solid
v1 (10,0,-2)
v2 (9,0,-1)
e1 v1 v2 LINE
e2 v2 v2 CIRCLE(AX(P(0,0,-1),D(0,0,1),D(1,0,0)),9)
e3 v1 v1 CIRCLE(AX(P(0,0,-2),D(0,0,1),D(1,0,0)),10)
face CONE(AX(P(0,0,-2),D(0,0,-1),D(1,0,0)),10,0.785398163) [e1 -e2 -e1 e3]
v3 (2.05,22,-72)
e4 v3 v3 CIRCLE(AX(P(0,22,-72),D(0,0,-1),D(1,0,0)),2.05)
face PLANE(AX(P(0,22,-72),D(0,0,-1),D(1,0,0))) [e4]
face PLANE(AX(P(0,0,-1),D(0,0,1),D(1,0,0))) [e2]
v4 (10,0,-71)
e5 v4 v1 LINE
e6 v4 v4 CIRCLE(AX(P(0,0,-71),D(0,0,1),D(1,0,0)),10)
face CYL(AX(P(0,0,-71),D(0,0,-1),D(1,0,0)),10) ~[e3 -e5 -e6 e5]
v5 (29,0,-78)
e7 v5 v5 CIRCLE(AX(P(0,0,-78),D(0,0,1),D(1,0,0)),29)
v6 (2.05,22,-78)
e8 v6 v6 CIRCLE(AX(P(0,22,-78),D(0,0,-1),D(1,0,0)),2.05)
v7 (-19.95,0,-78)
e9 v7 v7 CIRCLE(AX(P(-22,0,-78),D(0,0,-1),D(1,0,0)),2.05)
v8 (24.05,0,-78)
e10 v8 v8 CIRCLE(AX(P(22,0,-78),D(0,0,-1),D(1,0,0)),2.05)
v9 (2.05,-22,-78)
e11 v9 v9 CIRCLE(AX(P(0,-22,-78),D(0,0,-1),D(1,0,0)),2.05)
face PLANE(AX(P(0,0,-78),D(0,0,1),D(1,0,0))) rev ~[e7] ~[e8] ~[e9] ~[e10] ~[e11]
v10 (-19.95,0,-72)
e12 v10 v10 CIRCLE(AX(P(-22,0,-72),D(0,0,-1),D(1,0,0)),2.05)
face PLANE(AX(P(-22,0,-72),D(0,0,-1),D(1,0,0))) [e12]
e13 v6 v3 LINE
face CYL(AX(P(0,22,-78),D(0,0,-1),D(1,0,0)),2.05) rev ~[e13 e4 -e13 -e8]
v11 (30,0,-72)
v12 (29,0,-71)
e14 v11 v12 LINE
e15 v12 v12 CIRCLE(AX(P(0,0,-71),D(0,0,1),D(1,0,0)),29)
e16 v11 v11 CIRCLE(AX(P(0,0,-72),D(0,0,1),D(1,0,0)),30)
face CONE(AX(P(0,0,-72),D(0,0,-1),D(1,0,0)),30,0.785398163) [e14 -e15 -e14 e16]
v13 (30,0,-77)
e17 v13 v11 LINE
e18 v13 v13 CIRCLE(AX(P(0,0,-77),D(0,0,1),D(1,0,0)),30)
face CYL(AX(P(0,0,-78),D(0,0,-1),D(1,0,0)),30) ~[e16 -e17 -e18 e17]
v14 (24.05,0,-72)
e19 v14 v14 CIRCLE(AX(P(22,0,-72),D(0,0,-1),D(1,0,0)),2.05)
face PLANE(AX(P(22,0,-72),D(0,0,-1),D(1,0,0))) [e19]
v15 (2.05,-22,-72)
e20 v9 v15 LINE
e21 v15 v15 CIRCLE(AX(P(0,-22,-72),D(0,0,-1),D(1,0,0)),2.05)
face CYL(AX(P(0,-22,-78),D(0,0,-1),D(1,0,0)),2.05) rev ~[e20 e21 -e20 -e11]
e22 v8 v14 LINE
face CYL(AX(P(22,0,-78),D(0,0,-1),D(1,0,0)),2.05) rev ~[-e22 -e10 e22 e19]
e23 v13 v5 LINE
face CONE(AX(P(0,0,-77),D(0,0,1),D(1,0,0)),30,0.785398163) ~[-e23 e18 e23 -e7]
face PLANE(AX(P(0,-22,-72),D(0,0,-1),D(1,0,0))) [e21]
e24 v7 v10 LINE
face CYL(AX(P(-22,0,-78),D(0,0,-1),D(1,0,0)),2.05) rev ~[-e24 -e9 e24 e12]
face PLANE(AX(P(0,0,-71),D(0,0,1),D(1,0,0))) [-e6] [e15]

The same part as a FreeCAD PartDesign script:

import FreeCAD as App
import Part
import Sketcher
from FreeCAD import Vector


def edges_at(feature, points):
    """Names of the edges that pass closest to the given points."""
    edges = feature.Shape.Edges
    near = lambda p: min(range(len(edges)), key=lambda i: edges[i].distToShape(Part.Vertex(*p))[0])
    return sorted({f"Edge{near(p) + 1}" for p in points})

doc = App.newDocument("Part")
body = doc.addObject("PartDesign::Body", "Body")

sketch1 = body.newObject("Sketcher::SketchObject", "Sketch")
sketch1.AttachmentSupport = (doc.getObject("XY_Plane"), [""])
sketch1.MapMode = "FlatFace"
sketch1.addGeometry(Part.Circle(Vector(0, 0, 0), Vector(0, 0, 1), 30), False)
sketch1.addConstraint([
    Sketcher.Constraint("Coincident", 0, 3, -1, 1),
    Sketcher.Constraint("Diameter", 0, 60.0),
])
pad1 = body.newObject("PartDesign::Pad", "Pad")
pad1.Profile = sketch1
pad1.Length = 7

sketch2 = body.newObject("Sketcher::SketchObject", "Sketch001")
sketch2.AttachmentSupport = (doc.getObject("XY_Plane"), [""])
sketch2.MapMode = "FlatFace"
sketch2.AttachmentOffset = App.Placement(Vector(0, 0, 7), App.Rotation())
sketch2.addGeometry(Part.Circle(Vector(0, 0, 0), Vector(0, 0, 1), 10), False)
sketch2.addConstraint([
    Sketcher.Constraint("Coincident", 0, 3, -1, 1),
    Sketcher.Constraint("Diameter", 0, 20.0),
])
pad2 = body.newObject("PartDesign::Pad", "Pad001")
pad2.Profile = sketch2
pad2.Length = 70

sketch3 = body.newObject("Sketcher::SketchObject", "Sketch002")
sketch3.AttachmentSupport = (doc.getObject("XY_Plane"), [""])
sketch3.MapMode = "FlatFace"
sketch3.addGeometry([
    Part.Circle(Vector(0, -22, 0), Vector(0, 0, 1), 2),
    Part.Circle(Vector(22, 0, 0), Vector(0, 0, 1), 2),
    Part.Circle(Vector(-22, 0, 0), Vector(0, 0, 1), 2),
    Part.Circle(Vector(0, 22, 0), Vector(0, 0, 1), 2),
], False)
sketch3.addConstraint([
    Sketcher.Constraint("Equal", 0, 1),
    Sketcher.Constraint("Equal", 1, 2),
    Sketcher.Constraint("Equal", 2, 3),
    Sketcher.Constraint("Symmetric", 1, 3, 2, 3, -1, 1),
    Sketcher.Constraint("Symmetric", 0, 3, 3, 3, -1, 1),
    Sketcher.Constraint("PointOnObject", 0, 3, -2),
    Sketcher.Constraint("PointOnObject", 1, 3, -1),
    Sketcher.Constraint("Diameter", 0, 4.1),
    Sketcher.Constraint("DistanceY", 0, 3, -1, 1, 22.0),
    Sketcher.Constraint("DistanceX", -1, 1, 1, 3, 22.0),
])
pocket1 = body.newObject("PartDesign::Pocket", "Pocket")
pocket1.Profile = sketch3
pocket1.Length = 6
pocket1.Reversed = True
doc.recompute()

chamfer = body.newObject("PartDesign::Chamfer", "Chamfer")
chamfer.Base = (pocket1, edges_at(pocket1, [(-30, 0, 0), (-30, 0, 7), (-10, 0, 77)]))
chamfer.Size = 1
body2 = doc.addObject("PartDesign::Body", "Body001")
doc.recompute()

body.Placement = App.Placement(Vector(0, 0, -78), App.Rotation(Vector(0, 0, 1), 0))
boolean = body2.newObject("PartDesign::Boolean", "Boolean")
boolean.Type = "Fuse"
boolean.addObjects([body])

doc.recompute()
